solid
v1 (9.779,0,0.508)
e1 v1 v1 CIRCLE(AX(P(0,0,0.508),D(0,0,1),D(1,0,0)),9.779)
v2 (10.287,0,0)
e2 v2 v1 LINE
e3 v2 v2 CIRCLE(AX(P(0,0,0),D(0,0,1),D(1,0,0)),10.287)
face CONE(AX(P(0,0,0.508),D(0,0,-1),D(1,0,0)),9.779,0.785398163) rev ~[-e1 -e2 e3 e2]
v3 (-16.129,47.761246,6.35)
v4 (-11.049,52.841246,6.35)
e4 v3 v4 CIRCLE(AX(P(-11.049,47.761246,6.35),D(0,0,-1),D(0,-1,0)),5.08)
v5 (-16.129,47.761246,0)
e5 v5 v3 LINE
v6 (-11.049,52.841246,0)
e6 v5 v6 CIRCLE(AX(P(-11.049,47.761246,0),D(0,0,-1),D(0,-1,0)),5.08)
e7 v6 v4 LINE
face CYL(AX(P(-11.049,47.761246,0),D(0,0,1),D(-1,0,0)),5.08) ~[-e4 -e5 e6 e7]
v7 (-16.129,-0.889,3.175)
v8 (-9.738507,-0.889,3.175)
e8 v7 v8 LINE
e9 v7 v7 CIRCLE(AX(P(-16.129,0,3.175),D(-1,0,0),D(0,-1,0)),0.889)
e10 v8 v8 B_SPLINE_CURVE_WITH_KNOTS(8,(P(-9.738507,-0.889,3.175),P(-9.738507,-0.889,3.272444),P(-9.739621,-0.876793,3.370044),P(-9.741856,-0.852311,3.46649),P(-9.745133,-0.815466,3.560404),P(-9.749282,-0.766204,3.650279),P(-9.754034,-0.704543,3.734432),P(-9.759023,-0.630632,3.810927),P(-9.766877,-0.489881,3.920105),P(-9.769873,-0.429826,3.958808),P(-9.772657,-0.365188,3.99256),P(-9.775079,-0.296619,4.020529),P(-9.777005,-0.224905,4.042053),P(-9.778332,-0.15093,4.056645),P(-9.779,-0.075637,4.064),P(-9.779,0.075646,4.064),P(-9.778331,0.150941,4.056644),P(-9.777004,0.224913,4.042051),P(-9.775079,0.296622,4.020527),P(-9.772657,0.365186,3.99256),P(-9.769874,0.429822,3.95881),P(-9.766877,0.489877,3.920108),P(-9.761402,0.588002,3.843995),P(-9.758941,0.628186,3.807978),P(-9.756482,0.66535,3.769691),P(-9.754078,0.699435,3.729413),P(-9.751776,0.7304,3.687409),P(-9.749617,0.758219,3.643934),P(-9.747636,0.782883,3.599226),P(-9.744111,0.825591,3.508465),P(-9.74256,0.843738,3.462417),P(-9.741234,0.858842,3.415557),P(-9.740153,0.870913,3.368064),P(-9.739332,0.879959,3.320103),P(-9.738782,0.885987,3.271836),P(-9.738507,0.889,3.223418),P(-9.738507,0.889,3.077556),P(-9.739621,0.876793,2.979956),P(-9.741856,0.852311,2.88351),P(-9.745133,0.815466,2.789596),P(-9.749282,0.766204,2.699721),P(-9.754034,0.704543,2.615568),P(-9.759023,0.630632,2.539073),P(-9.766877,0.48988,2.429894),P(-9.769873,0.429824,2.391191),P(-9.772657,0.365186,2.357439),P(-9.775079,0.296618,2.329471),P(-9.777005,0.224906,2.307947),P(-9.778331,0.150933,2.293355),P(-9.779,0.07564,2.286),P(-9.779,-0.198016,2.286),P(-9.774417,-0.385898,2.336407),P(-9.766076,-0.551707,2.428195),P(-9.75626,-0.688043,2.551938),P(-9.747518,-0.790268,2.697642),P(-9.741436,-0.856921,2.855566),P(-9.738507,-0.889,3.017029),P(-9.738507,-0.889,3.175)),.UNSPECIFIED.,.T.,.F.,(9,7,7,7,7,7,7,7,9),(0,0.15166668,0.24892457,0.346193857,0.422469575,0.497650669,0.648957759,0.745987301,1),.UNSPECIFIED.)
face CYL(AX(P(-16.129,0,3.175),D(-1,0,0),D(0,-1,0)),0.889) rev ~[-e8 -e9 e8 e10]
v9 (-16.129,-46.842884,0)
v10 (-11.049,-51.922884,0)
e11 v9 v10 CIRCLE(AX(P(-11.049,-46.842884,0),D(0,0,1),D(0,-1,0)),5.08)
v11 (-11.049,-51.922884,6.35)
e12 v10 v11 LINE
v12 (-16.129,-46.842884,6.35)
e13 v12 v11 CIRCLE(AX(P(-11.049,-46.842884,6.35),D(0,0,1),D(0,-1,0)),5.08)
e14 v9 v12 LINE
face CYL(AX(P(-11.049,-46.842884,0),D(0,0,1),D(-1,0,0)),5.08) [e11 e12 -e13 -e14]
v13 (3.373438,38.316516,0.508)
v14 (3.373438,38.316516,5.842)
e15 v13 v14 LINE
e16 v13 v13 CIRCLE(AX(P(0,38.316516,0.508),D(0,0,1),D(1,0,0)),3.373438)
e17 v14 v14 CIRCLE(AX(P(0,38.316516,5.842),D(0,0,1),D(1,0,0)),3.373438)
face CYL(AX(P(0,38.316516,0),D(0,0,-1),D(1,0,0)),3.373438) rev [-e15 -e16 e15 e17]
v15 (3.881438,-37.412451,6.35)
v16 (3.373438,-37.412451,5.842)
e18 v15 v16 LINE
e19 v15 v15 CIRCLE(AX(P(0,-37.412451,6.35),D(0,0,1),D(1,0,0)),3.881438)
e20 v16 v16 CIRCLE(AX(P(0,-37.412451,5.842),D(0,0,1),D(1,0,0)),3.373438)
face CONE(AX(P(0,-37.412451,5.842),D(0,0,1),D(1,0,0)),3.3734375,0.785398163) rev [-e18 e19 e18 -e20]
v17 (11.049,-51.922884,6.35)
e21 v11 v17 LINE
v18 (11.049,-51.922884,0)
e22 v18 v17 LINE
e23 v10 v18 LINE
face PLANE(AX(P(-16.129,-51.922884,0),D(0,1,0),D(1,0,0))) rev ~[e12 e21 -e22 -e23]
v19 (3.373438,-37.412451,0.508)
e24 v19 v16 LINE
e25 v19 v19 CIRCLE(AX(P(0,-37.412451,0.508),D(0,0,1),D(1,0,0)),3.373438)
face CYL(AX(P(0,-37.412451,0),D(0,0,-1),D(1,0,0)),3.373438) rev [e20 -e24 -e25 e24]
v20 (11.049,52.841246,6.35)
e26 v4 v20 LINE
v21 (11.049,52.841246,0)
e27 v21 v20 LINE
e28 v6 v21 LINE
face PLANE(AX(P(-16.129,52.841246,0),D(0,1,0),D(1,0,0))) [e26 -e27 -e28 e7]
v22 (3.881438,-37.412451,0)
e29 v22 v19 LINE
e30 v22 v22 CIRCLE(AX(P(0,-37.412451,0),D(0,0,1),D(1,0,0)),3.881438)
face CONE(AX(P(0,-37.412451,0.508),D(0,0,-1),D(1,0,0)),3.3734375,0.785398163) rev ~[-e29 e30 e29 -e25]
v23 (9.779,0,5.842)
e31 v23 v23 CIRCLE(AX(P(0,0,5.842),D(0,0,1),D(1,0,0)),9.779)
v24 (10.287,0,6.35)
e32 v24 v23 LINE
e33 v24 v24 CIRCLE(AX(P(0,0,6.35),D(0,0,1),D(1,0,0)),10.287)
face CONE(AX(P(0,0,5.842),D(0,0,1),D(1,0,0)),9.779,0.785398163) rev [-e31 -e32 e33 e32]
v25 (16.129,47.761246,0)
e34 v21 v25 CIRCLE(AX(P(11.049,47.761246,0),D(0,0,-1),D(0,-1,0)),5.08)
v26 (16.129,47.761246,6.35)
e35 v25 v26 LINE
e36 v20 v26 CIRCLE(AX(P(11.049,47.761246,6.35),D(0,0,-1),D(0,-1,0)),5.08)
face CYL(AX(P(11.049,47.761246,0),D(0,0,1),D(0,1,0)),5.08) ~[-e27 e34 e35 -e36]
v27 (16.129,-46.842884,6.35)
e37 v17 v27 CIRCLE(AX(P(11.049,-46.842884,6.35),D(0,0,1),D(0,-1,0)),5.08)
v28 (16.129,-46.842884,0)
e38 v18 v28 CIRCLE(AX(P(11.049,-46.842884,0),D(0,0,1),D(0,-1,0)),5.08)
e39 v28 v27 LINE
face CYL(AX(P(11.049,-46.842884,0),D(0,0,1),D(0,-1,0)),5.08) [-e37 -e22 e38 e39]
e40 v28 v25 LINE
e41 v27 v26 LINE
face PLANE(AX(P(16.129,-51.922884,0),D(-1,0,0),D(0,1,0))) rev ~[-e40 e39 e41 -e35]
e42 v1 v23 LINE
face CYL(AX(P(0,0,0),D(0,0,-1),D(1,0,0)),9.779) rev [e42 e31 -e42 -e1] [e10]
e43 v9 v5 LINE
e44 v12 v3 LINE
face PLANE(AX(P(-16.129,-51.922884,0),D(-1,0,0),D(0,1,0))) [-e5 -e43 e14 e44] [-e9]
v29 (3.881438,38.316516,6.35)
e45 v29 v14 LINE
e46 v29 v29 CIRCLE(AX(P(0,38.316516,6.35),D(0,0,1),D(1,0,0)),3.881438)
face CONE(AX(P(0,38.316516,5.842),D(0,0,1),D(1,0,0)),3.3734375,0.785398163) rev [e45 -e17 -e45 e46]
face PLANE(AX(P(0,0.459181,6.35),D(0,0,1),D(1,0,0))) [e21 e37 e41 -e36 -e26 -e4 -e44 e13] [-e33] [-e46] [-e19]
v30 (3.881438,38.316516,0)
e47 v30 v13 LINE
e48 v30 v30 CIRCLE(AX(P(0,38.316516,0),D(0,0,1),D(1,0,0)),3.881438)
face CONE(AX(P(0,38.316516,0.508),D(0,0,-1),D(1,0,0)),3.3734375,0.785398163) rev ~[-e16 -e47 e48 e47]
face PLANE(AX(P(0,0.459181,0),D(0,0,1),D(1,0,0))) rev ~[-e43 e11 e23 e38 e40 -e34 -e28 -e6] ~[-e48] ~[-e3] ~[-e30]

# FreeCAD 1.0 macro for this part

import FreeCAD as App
import Part
import Sketcher
Q = App.Units.Quantity


def edges_at(feature, points):
    """Names of the edges that pass closest to the given points."""
    edges = feature.Shape.Edges
    near = lambda p: min(range(len(edges)), key=lambda i: edges[i].distToShape(Part.Vertex(*p))[0])
    return sorted({f"Edge{near(p) + 1}" for p in points})

doc = App.newDocument("Part")
body = doc.addObject("PartDesign::Body", "Body")

# Sketch on XY plane
sketch1 = body.newObject("Sketcher::SketchObject", "Sketch")
sketch1.AttachmentSupport = (doc.getObject("XY_Plane"), [""])
sketch1.MapMode = "FlatFace"
sketch1.addGeometry(Part.LineSegment(App.Vector(-16.1, 52.8, 0), App.Vector(-16.1, -51.9, 0)), False)
sketch1.addGeometry(Part.LineSegment(App.Vector(-16.1, -51.9, 0), App.Vector(16.1, -51.9, 0)), False)
sketch1.addGeometry(Part.LineSegment(App.Vector(16.1, -51.9, 0), App.Vector(16.1, 52.8, 0)), False)
sketch1.addGeometry(Part.LineSegment(App.Vector(16.1, 52.8, 0), App.Vector(-16.1, 52.8, 0)), False)
sketch1.addGeometry(Part.Circle(App.Vector(0, -37.4, 0), App.Vector(0, 0, 1), 3.4), False)
sketch1.addGeometry(Part.Circle(App.Vector(0, 0, 0), App.Vector(0, 0, 1), 9.8), False)
sketch1.addGeometry(Part.Circle(App.Vector(0, 38.3, 0), App.Vector(0, 0, 1), 3.4), False)
sketch1.addConstraint(Sketcher.Constraint("Coincident", 0, 2, 1, 1))
sketch1.addConstraint(Sketcher.Constraint("Coincident", 1, 2, 2, 1))
sketch1.addConstraint(Sketcher.Constraint("Coincident", 2, 2, 3, 1))
sketch1.addConstraint(Sketcher.Constraint("Coincident", 3, 2, 0, 1))
sketch1.addConstraint(Sketcher.Constraint("Vertical", 0))
sketch1.addConstraint(Sketcher.Constraint("Horizontal", 1))
sketch1.addConstraint(Sketcher.Constraint("Vertical", 2))
sketch1.addConstraint(Sketcher.Constraint("Horizontal", 3))
sketch1.addConstraint(Sketcher.Constraint("Coincident", 5, 3, -1, 1))
sketch1.addConstraint(Sketcher.Constraint("Equal", 4, 6))
sketch1.addConstraint(Sketcher.Constraint("PointOnObject", 4, 3, -2))
sketch1.addConstraint(Sketcher.Constraint("PointOnObject", 6, 3, -2))
sketch1.addConstraint(Sketcher.Constraint("Diameter", 5, Q("0.77 in")))
sketch1.addConstraint(Sketcher.Constraint("Diameter", 4, Q("0.265625 in")))
sketch1.addConstraint(Sketcher.Constraint("DistanceX", 1, 1, 1, 2, Q("1.27 in")))
sketch1.addConstraint(Sketcher.Constraint("DistanceX", 0, 2, -1, 1, Q("0.635 in")))
sketch1.addConstraint(Sketcher.Constraint("DistanceY", 0, 2, 0, 1, Q("104.76413 mm")))
sketch1.addConstraint(Sketcher.Constraint("DistanceY", 0, 2, 6, 3, Q("90.2394 mm")))
sketch1.addConstraint(Sketcher.Constraint("DistanceY", 4, 3, -1, 1, Q("37.412451 mm")))
sketch1.addConstraint(Sketcher.Constraint("DistanceY", -1, 1, 6, 3, Q("38.316516 mm")))
pad1 = body.newObject("PartDesign::Pad", "Pad")
pad1.Profile = sketch1
pad1.Length = Q("0.25 in")

# Sketch on YZ plane
sketch2 = body.newObject("Sketcher::SketchObject", "Sketch001")
sketch2.AttachmentSupport = (doc.getObject("YZ_Plane"), [""])
sketch2.MapMode = "FlatFace"
sketch2.AttachmentOffset = App.Placement(App.Vector(0, 0, -0.635 * 25.4), App.Rotation())
sketch2.addGeometry(Part.Circle(App.Vector(0, 3.2, 0), App.Vector(0, 0, 1), 0.9), False)
sketch2.addConstraint(Sketcher.Constraint("PointOnObject", 0, 3, -2))
sketch2.addConstraint(Sketcher.Constraint("Diameter", 0, Q("0.07 in")))
sketch2.addConstraint(Sketcher.Constraint("DistanceY", -1, 1, 0, 3, Q("0.125 in")))
pocket1 = body.newObject("PartDesign::Pocket", "Pocket")
pocket1.Profile = sketch2
pocket1.Length = 6.391493
pocket1.Reversed = True
doc.recompute()

fillet = body.newObject("PartDesign::Fillet", "Fillet")
fillet.Base = (pocket1, edges_at(pocket1, [
    (-16.129, 52.841, 3.175),
    (-16.129, -51.923, 3.175),
    (16.129, -51.923, 3.175),
    (16.129, 52.841, 3.175),
]))
fillet.Radius = Q("0.2 in")
doc.recompute()

chamfer = body.newObject("PartDesign::Chamfer", "Chamfer")
chamfer.Base = (fillet, edges_at(fillet, [
    (-3.373, 38.317, 6.35),
    (-3.373, 38.317, 0),
    (-9.779, 0, 0),
    (-3.373, -37.412, 0),
    (-3.373, -37.412, 6.35),
    (-9.779, 0, 6.35),
]))
chamfer.Size = Q("0.02 in")

doc.recompute()
